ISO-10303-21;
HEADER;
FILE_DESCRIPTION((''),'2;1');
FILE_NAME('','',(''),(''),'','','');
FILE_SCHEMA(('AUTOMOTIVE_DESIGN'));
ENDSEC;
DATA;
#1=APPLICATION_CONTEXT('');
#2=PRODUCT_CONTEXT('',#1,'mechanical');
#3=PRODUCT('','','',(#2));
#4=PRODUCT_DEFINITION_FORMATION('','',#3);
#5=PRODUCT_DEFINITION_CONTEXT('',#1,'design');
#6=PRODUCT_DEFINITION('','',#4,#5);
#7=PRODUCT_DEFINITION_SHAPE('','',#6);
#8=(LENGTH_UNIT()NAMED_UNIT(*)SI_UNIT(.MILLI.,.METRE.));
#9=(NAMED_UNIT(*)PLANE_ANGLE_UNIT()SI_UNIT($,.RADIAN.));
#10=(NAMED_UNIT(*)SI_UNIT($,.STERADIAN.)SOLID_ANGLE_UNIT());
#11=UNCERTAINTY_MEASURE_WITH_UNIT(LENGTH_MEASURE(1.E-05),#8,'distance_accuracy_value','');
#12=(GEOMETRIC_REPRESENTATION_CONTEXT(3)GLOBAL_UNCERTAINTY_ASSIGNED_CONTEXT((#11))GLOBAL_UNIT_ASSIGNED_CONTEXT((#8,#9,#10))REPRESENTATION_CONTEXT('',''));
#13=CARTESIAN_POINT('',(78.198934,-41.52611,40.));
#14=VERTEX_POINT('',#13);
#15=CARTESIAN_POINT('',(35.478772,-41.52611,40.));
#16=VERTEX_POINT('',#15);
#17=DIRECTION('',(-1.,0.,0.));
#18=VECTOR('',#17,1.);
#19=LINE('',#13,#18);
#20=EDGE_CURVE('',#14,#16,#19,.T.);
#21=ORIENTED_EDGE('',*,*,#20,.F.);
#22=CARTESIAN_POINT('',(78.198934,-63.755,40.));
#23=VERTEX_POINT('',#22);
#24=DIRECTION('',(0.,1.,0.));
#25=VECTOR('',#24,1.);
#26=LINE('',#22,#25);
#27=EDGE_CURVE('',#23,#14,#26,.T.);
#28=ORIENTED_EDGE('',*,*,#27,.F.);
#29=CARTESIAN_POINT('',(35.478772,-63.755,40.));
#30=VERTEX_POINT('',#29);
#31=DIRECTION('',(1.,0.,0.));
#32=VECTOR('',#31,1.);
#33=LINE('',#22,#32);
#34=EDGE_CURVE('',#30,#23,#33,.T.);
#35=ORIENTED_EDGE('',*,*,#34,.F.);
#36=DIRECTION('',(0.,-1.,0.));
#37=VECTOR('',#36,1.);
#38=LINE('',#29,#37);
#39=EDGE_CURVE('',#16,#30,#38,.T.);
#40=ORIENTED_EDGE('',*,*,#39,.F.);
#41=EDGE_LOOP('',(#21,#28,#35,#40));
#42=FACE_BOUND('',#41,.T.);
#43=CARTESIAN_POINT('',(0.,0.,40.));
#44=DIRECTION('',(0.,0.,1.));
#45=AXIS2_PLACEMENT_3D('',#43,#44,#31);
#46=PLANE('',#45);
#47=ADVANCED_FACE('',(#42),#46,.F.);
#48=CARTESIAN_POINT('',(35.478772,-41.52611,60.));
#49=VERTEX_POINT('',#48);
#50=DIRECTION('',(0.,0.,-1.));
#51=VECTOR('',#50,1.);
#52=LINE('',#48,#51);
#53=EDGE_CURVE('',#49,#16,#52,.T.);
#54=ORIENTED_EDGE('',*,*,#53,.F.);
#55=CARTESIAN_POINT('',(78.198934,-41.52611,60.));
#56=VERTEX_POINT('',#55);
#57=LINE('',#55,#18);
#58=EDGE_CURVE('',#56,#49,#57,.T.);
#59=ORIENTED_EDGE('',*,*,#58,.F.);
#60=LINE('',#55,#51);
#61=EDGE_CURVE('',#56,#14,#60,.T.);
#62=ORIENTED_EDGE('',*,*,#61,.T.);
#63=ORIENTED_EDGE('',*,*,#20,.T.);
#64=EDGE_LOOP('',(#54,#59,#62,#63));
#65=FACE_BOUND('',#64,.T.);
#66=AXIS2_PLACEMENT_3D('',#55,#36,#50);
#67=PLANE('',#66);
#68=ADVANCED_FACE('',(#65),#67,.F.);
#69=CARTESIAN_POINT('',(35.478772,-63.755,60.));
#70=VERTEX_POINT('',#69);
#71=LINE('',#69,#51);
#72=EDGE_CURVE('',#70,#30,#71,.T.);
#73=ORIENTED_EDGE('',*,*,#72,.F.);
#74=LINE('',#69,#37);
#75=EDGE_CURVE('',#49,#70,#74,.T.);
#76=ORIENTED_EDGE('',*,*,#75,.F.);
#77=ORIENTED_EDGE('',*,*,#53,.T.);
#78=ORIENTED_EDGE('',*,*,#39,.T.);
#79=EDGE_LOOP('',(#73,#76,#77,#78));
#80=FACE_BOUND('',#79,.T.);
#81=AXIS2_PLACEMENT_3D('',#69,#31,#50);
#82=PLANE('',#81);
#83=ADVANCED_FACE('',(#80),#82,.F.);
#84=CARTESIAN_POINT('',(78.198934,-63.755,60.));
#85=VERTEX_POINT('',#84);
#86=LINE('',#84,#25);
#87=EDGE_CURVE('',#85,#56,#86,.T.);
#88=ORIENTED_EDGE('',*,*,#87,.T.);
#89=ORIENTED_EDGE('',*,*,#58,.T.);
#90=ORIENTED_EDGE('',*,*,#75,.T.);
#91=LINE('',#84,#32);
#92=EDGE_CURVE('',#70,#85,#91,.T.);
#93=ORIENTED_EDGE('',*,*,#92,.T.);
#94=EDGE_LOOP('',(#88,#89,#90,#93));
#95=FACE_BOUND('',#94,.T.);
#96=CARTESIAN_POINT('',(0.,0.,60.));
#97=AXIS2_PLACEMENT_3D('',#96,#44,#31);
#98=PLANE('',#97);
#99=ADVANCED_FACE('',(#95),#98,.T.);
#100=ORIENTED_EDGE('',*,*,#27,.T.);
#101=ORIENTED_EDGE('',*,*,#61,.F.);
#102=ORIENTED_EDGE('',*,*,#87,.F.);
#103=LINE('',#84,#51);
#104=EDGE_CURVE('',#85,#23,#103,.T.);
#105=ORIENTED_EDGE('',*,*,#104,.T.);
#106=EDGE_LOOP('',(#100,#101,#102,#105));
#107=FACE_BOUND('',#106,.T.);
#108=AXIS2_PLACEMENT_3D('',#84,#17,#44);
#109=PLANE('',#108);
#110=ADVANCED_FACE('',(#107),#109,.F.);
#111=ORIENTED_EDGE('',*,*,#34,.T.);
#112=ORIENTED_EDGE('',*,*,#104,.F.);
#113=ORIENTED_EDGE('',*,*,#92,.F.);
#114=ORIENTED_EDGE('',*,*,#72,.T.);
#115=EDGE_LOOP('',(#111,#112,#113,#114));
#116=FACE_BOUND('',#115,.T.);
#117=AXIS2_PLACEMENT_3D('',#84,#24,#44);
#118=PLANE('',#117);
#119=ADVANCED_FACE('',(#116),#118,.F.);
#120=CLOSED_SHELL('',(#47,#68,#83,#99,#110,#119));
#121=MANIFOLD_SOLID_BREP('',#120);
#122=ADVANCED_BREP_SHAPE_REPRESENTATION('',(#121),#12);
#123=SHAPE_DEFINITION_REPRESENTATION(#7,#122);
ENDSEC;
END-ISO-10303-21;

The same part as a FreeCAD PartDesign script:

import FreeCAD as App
import Part
import Sketcher
from FreeCAD import Vector

doc = App.newDocument("Part")
body = doc.addObject("PartDesign::Body", "Body")

# Sketch on XY plane
sketch1 = doc.addObject("Sketcher::SketchObject", "Sketch")
body.addObject(sketch1)
sketch1.AttachmentSupport = (doc.XY_Plane, [""])
sketch1.MapMode = "FlatFace"
sketch1.addGeometry(Part.LineSegment(Vector(-78, 64, 0), Vector(-78, -64, 0)), False)
sketch1.addGeometry(Part.LineSegment(Vector(-78, -64, 0), Vector(78, -64, 0)), False)
sketch1.addGeometry(Part.LineSegment(Vector(78, -64, 0), Vector(78, 64, 0)), False)
sketch1.addGeometry(Part.LineSegment(Vector(78, 64, 0), Vector(-78, 64, 0)), False)
sketch1.addConstraint(Sketcher.Constraint("Coincident", 0, 2, 1, 1))
sketch1.addConstraint(Sketcher.Constraint("Coincident", 1, 2, 2, 1))
sketch1.addConstraint(Sketcher.Constraint("Coincident", 2, 2, 3, 1))
sketch1.addConstraint(Sketcher.Constraint("Coincident", 3, 2, 0, 1))
sketch1.addConstraint(Sketcher.Constraint("Vertical", 0))
sketch1.addConstraint(Sketcher.Constraint("Horizontal", 1))
sketch1.addConstraint(Sketcher.Constraint("Vertical", 2))
sketch1.addConstraint(Sketcher.Constraint("Horizontal", 3))
sketch1.addConstraint(Sketcher.Constraint("Symmetric", 0, 2, 2, 2, -1, 1))
sketch1.addConstraint(Sketcher.Constraint("DistanceY", 0, 2, 0, 1, 127.51))
sketch1.addConstraint(Sketcher.Constraint("DistanceX", 1, 1, 1, 2, 156.397869))
pad1 = doc.addObject("PartDesign::Pad", "Pad")
body.addObject(pad1)
pad1.Profile = sketch1
pad1.Length = 40
body2 = doc.addObject("PartDesign::Body", "Body001")

# Sketch on XY plane
sketch2 = doc.addObject("Sketcher::SketchObject", "Sketch001")
body2.addObject(sketch2)
sketch2.AttachmentSupport = (doc.getObject("XY_Plane001"), [""])
sketch2.MapMode = "FlatFace"
sketch2.AttachmentOffset = App.Placement(Vector(0, 0, 40), App.Rotation())
sketch2.addGeometry(Part.LineSegment(Vector(-78, -44, 0), Vector(-78, -64, 0)), False)
sketch2.addGeometry(Part.LineSegment(Vector(-78, -64, 0), Vector(-54, -64, 0)), False)
sketch2.addGeometry(Part.LineSegment(Vector(-54, -64, 0), Vector(-54, -44, 0)), False)
sketch2.addGeometry(Part.LineSegment(Vector(-54, -44, 0), Vector(-78, -44, 0)), False)
sketch2.addConstraint(Sketcher.Constraint("Coincident", 0, 2, 1, 1))
sketch2.addConstraint(Sketcher.Constraint("Coincident", 1, 2, 2, 1))
sketch2.addConstraint(Sketcher.Constraint("Coincident", 2, 2, 3, 1))
sketch2.addConstraint(Sketcher.Constraint("Coincident", 3, 2, 0, 1))
sketch2.addConstraint(Sketcher.Constraint("Vertical", 0))
sketch2.addConstraint(Sketcher.Constraint("Horizontal", 1))
sketch2.addConstraint(Sketcher.Constraint("Vertical", 2))
sketch2.addConstraint(Sketcher.Constraint("Horizontal", 3))
sketch2.addConstraint(Sketcher.Constraint("DistanceY", 0, 2, 0, 1, 20.0))
sketch2.addConstraint(Sketcher.Constraint("DistanceY", 0, 2, -1, 1, 63.755))
sketch2.addConstraint(Sketcher.Constraint("DistanceX", 1, 1, 1, 2, 24.691066))
sketch2.addConstraint(Sketcher.Constraint("DistanceX", 1, 2, -1, 1, 53.507868))
pad2 = doc.addObject("PartDesign::Pad", "Pad001")
body2.addObject(pad2)
pad2.Profile = sketch2
pad2.Length = 20
body3 = doc.addObject("PartDesign::Body", "Body002")

# Sketch on XY plane
sketch3 = doc.addObject("Sketcher::SketchObject", "Sketch002")
body3.addObject(sketch3)
sketch3.AttachmentSupport = (doc.getObject("XY_Plane002"), [""])
sketch3.MapMode = "FlatFace"
sketch3.AttachmentOffset = App.Placement(Vector(0, 0, 40), App.Rotation())
sketch3.addGeometry(Part.LineSegment(Vector(-78, 64, 0), Vector(-78, 44, 0)), False)
sketch3.addGeometry(Part.LineSegment(Vector(-78, 44, 0), Vector(-54, 44, 0)), False)
sketch3.addGeometry(Part.LineSegment(Vector(-54, 44, 0), Vector(-54, 64, 0)), False)
sketch3.addGeometry(Part.LineSegment(Vector(-54, 64, 0), Vector(-78, 64, 0)), False)
sketch3.addConstraint(Sketcher.Constraint("Coincident", 0, 2, 1, 1))
sketch3.addConstraint(Sketcher.Constraint("Coincident", 1, 2, 2, 1))
sketch3.addConstraint(Sketcher.Constraint("Coincident", 2, 2, 3, 1))
sketch3.addConstraint(Sketcher.Constraint("Coincident", 3, 2, 0, 1))
sketch3.addConstraint(Sketcher.Constraint("Vertical", 0))
sketch3.addConstraint(Sketcher.Constraint("Horizontal", 1))
sketch3.addConstraint(Sketcher.Constraint("Vertical", 2))
sketch3.addConstraint(Sketcher.Constraint("Horizontal", 3))
sketch3.addConstraint(Sketcher.Constraint("DistanceY", 0, 2, 0, 1, 20.0))
sketch3.addConstraint(Sketcher.Constraint("DistanceY", -1, 1, 0, 2, 43.755))
sketch3.addConstraint(Sketcher.Constraint("DistanceX", 1, 1, 1, 2, 24.691066))
sketch3.addConstraint(Sketcher.Constraint("DistanceX", 1, 2, -1, 1, 53.507868))
pad3 = doc.addObject("PartDesign::Pad", "Pad002")
body3.addObject(pad3)
pad3.Profile = sketch3
pad3.Length = 20
body4 = doc.addObject("PartDesign::Body", "Body003")

# Sketch on XY plane
sketch4 = doc.addObject("Sketcher::SketchObject", "Sketch003")
body4.addObject(sketch4)
sketch4.AttachmentSupport = (doc.getObject("XY_Plane003"), [""])
sketch4.MapMode = "FlatFace"
sketch4.AttachmentOffset = App.Placement(Vector(0, 0, 40), App.Rotation())
sketch4.addGeometry(Part.LineSegment(Vector(35, 64, 0), Vector(35, 42, 0)), False)
sketch4.addGeometry(Part.LineSegment(Vector(35, 42, 0), Vector(78, 42, 0)), False)
sketch4.addGeometry(Part.LineSegment(Vector(78, 42, 0), Vector(78, 64, 0)), False)
sketch4.addGeometry(Part.LineSegment(Vector(78, 64, 0), Vector(35, 64, 0)), False)
sketch4.addConstraint(Sketcher.Constraint("Coincident", 0, 2, 1, 1))
sketch4.addConstraint(Sketcher.Constraint("Coincident", 1, 2, 2, 1))
sketch4.addConstraint(Sketcher.Constraint("Coincident", 2, 2, 3, 1))
sketch4.addConstraint(Sketcher.Constraint("Coincident", 3, 2, 0, 1))
sketch4.addConstraint(Sketcher.Constraint("Vertical", 0))
sketch4.addConstraint(Sketcher.Constraint("Horizontal", 1))
sketch4.addConstraint(Sketcher.Constraint("Vertical", 2))
sketch4.addConstraint(Sketcher.Constraint("Horizontal", 3))
sketch4.addConstraint(Sketcher.Constraint("DistanceY", -1, 1, 2, 2, 63.755))
sketch4.addConstraint(Sketcher.Constraint("DistanceY", 0, 2, 0, 1, 22.22889))
sketch4.addConstraint(Sketcher.Constraint("DistanceX", 1, 1, 1, 2, 42.720163))
sketch4.addConstraint(Sketcher.Constraint("DistanceX", -1, 1, 0, 2, 35.478772))
pad4 = doc.addObject("PartDesign::Pad", "Pad003")
body4.addObject(pad4)
pad4.Profile = sketch4
pad4.Length = 20
body5 = doc.addObject("PartDesign::Body", "Body004")

# Sketch on XY plane
sketch5 = doc.addObject("Sketcher::SketchObject", "Sketch004")
body5.addObject(sketch5)
sketch5.AttachmentSupport = (doc.getObject("XY_Plane004"), [""])
sketch5.MapMode = "FlatFace"
sketch5.AttachmentOffset = App.Placement(Vector(0, 0, 40), App.Rotation())
sketch5.addGeometry(Part.LineSegment(Vector(35, -42, 0), Vector(35, -64, 0)), False)
sketch5.addGeometry(Part.LineSegment(Vector(35, -64, 0), Vector(78, -64, 0)), False)
sketch5.addGeometry(Part.LineSegment(Vector(78, -64, 0), Vector(78, -42, 0)), False)
sketch5.addGeometry(Part.LineSegment(Vector(78, -42, 0), Vector(35, -42, 0)), False)
sketch5.addConstraint(Sketcher.Constraint("Coincident", 0, 2, 1, 1))
sketch5.addConstraint(Sketcher.Constraint("Coincident", 1, 2, 2, 1))
sketch5.addConstraint(Sketcher.Constraint("Coincident", 2, 2, 3, 1))
sketch5.addConstraint(Sketcher.Constraint("Coincident", 3, 2, 0, 1))
sketch5.addConstraint(Sketcher.Constraint("Vertical", 0))
sketch5.addConstraint(Sketcher.Constraint("Horizontal", 1))
sketch5.addConstraint(Sketcher.Constraint("Vertical", 2))
sketch5.addConstraint(Sketcher.Constraint("Horizontal", 3))
sketch5.addConstraint(Sketcher.Constraint("DistanceY", 0, 2, -1, 1, 63.755))
sketch5.addConstraint(Sketcher.Constraint("DistanceY", 0, 2, 0, 1, 22.22889))
sketch5.addConstraint(Sketcher.Constraint("DistanceX", 1, 1, 1, 2, 42.720163))
sketch5.addConstraint(Sketcher.Constraint("DistanceX", -1, 1, 0, 2, 35.478772))
pad5 = doc.addObject("PartDesign::Pad", "Pad004")
body5.addObject(pad5)
pad5.Profile = sketch5
pad5.Length = 20
body.Visibility = False
body2.Visibility = False
body3.Visibility = False
body4.Visibility = False

doc.recompute()
